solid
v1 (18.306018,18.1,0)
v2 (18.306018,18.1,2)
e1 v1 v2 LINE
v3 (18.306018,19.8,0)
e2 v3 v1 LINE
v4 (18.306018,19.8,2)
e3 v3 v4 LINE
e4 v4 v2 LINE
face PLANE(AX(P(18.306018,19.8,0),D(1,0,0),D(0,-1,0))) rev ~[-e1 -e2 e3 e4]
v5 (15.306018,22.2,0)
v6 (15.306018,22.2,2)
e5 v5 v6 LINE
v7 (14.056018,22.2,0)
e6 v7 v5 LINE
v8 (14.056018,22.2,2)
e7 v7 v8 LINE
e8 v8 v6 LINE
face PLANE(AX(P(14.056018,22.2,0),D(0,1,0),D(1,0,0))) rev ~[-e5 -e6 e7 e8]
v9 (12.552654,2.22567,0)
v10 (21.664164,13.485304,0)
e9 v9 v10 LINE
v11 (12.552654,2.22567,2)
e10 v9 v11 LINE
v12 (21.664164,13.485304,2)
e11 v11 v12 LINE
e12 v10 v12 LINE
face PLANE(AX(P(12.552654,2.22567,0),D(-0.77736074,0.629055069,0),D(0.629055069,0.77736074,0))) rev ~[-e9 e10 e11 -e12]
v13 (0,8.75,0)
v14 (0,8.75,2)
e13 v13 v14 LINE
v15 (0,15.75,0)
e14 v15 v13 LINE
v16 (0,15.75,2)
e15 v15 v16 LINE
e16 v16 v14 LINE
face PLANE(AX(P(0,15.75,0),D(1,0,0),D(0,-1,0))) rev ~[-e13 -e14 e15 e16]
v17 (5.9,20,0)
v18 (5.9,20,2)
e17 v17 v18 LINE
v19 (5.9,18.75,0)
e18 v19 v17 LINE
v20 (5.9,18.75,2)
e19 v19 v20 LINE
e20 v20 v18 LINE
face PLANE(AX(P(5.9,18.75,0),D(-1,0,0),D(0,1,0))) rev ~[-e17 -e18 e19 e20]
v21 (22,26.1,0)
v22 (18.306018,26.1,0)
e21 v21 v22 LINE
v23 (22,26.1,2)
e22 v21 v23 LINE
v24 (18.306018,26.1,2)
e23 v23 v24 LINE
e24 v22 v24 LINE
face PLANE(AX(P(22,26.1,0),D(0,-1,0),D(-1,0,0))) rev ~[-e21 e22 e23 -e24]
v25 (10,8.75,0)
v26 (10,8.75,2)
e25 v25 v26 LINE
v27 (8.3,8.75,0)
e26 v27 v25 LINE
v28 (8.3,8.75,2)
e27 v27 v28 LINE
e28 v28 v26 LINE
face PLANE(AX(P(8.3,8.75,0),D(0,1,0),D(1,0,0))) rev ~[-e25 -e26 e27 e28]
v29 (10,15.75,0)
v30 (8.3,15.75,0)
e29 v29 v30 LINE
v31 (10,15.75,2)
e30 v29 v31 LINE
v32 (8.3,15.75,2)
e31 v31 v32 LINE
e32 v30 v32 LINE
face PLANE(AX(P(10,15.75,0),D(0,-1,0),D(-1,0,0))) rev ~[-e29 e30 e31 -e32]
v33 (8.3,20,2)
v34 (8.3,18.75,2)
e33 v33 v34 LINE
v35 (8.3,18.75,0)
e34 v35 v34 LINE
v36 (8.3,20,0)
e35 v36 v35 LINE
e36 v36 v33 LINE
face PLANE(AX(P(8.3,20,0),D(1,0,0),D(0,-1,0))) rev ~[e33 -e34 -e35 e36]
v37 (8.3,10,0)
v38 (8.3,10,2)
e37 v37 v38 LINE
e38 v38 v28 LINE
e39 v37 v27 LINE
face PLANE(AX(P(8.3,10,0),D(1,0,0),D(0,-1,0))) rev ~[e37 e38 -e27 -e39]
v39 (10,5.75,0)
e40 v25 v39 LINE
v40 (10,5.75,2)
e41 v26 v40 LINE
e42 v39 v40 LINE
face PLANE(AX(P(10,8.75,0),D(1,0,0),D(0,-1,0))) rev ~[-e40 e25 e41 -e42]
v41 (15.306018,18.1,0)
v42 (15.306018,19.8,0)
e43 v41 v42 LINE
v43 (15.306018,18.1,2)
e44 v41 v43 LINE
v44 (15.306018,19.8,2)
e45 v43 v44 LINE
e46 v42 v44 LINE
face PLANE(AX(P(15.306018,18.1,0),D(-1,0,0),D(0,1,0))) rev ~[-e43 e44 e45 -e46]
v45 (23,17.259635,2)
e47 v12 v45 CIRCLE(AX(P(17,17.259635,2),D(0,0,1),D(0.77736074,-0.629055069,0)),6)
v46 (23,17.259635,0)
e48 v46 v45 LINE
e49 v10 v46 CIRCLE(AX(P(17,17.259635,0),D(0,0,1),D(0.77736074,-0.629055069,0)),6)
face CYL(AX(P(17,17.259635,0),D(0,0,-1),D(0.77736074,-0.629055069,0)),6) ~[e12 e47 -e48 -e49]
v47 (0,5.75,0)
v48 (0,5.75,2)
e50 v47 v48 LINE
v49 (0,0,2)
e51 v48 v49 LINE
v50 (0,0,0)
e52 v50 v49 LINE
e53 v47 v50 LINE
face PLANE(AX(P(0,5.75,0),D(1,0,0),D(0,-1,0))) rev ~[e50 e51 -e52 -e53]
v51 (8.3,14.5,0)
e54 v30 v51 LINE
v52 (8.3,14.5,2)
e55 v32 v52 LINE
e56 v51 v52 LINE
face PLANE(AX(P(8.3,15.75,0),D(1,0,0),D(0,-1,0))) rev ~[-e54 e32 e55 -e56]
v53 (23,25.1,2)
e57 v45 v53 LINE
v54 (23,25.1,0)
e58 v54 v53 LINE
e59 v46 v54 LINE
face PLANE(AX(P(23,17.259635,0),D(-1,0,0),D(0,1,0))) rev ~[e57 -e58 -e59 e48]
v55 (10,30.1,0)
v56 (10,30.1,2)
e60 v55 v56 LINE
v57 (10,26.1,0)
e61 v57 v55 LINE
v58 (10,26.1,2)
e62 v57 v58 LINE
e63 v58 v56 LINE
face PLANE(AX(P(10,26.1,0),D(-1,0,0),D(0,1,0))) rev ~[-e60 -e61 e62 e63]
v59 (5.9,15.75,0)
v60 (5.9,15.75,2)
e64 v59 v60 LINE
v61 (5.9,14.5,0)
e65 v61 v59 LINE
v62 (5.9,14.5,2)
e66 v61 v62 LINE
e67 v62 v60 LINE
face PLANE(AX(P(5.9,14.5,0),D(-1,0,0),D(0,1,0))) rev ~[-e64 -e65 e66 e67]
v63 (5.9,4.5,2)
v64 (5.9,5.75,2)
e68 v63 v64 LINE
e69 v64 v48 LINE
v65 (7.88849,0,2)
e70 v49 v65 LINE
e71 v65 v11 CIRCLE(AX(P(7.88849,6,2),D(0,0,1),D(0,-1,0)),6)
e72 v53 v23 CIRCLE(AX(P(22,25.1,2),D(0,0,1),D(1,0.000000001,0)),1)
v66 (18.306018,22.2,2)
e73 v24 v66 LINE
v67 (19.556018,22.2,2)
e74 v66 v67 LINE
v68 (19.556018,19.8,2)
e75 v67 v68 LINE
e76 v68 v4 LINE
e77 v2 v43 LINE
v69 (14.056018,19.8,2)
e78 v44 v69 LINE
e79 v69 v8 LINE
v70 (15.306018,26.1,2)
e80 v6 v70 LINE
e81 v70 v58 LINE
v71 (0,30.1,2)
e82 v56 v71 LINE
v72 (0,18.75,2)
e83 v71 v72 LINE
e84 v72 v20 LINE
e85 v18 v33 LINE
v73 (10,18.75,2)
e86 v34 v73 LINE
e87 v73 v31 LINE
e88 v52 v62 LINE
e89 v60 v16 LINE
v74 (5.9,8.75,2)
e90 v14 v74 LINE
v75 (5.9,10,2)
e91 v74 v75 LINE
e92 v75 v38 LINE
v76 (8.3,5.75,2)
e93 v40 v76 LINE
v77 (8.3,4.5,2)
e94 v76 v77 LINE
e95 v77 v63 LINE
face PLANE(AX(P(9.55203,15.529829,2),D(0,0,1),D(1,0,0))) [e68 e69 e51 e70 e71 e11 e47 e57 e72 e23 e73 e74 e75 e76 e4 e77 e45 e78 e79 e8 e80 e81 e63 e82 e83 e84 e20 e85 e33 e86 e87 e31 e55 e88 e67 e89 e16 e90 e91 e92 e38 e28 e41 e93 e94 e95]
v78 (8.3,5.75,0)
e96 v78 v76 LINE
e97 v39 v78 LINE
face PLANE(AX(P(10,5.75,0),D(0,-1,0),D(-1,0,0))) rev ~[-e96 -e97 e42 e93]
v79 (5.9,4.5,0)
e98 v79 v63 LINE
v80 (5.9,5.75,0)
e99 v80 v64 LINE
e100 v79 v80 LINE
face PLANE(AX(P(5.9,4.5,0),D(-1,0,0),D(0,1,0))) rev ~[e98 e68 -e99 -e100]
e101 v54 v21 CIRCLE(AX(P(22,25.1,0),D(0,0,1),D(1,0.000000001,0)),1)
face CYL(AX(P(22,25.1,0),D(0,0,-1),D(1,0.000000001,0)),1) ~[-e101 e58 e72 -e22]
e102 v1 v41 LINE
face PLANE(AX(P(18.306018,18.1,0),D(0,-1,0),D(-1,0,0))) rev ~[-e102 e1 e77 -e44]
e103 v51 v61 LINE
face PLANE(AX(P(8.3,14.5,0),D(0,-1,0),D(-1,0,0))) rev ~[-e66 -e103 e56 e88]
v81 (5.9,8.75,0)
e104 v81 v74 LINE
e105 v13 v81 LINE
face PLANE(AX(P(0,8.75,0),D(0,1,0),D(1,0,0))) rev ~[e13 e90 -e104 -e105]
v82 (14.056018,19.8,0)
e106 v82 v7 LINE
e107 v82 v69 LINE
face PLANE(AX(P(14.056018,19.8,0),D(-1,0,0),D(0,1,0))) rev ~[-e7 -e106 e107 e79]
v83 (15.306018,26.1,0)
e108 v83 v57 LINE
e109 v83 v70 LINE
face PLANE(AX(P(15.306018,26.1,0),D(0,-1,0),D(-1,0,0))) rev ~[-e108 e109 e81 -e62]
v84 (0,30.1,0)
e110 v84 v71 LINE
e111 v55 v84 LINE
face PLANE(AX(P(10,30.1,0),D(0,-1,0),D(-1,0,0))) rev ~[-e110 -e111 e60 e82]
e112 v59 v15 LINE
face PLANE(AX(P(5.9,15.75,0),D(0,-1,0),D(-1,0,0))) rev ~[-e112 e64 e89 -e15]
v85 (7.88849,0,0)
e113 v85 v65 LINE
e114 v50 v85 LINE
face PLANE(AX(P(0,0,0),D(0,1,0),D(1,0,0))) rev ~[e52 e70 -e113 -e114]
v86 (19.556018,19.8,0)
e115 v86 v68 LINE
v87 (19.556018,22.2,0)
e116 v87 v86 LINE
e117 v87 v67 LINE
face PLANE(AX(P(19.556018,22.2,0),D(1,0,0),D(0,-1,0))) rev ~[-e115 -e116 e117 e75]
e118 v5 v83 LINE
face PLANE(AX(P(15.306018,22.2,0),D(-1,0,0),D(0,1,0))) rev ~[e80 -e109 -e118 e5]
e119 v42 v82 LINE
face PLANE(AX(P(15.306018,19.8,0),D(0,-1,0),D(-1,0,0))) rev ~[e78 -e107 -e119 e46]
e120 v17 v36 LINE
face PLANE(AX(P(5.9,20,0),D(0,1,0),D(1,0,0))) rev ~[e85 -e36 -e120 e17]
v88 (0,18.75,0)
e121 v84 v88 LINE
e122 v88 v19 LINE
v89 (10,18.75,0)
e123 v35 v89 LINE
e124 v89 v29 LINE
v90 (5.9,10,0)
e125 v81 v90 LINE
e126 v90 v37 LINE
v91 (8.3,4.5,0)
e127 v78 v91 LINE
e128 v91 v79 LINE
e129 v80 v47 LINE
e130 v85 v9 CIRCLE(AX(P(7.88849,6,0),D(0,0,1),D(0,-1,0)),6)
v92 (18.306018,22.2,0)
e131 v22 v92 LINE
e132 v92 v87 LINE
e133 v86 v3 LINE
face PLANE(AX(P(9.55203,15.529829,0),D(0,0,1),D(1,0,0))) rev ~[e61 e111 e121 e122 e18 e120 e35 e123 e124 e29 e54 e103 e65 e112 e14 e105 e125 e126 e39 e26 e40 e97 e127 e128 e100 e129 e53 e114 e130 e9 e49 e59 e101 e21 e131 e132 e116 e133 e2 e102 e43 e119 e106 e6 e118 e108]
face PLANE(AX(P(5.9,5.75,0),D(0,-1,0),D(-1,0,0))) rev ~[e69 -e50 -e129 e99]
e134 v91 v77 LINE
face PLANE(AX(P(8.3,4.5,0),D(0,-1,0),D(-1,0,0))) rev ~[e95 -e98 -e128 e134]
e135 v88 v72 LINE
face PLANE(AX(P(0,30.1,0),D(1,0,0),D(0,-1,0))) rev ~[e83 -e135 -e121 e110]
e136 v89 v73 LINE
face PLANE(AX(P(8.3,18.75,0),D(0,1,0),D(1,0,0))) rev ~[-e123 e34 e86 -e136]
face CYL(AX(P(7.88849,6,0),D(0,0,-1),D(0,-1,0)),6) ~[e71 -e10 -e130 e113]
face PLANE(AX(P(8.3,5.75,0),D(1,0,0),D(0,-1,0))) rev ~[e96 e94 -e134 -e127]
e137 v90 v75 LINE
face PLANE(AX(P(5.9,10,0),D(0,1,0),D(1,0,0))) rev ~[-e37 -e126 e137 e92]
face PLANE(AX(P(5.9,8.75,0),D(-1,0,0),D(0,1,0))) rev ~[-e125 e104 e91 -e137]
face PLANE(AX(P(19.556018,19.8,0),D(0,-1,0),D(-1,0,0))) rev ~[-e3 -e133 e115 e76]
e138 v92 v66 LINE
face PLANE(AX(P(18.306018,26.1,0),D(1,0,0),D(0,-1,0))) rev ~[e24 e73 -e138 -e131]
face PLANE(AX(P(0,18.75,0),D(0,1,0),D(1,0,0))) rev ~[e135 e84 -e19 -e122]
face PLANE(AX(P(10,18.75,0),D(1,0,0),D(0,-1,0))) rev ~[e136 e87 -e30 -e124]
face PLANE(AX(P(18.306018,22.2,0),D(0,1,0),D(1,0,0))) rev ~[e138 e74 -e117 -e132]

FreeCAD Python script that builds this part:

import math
import FreeCAD as App
import Part
import Sketcher
from FreeCAD import Vector

doc = App.newDocument("Part")
body = doc.addObject("PartDesign::Body", "Body")

# Sketch on XY plane
sketch1 = doc.addObject("Sketcher::SketchObject", "Sketch")
body.addObject(sketch1)
sketch1.AttachmentSupport = (doc.XY_Plane, [""])
sketch1.MapMode = "FlatFace"
sketch1.addGeometry(Part.LineSegment(Vector(10, 5.75, 0), Vector(8.3, 5.75, 0)), False)
sketch1.addGeometry(Part.LineSegment(Vector(8.3, 5.75, 0), Vector(8.3, 4.5, 0)), False)
sketch1.addGeometry(Part.LineSegment(Vector(8.3, 4.5, 0), Vector(5.9, 4.5, 0)), False)
sketch1.addGeometry(Part.LineSegment(Vector(5.9, 4.5, 0), Vector(5.9, 5.75, 0)), False)
sketch1.addGeometry(Part.LineSegment(Vector(5.9, 5.75, 0), Vector(0, 5.75, 0)), False)
sketch1.addGeometry(Part.LineSegment(Vector(0, 5.75, 0), Vector(0, 0, 0)), False)
sketch1.addGeometry(Part.LineSegment(Vector(0, 0, 0), Vector(7.88849, 0, 0)), False)
sketch1.addGeometry(Part.ArcOfCircle(Part.Circle(Vector(7.88849, 6, 0), Vector(0, 0, 1), 6), math.radians(-90), math.radians(-38.980442)), False)
sketch1.addGeometry(Part.LineSegment(Vector(12.552654, 2.22567, 0), Vector(21.664164, 13.485304, 0)), False)
sketch1.addGeometry(Part.ArcOfCircle(Part.Circle(Vector(17, 17.259635, 0), Vector(0, 0, 1), 6), math.radians(-38.980442), math.radians(0)), False)
sketch1.addGeometry(Part.LineSegment(Vector(23, 17.259635, 0), Vector(23, 25.1, 0)), False)
sketch1.addGeometry(Part.ArcOfCircle(Part.Circle(Vector(22, 25.1, 0), Vector(0, 0, 1), 1), math.radians(0), math.radians(90)), False)
sketch1.addGeometry(Part.LineSegment(Vector(22, 26.1, 0), Vector(18.306018, 26.1, 0)), False)
sketch1.addGeometry(Part.LineSegment(Vector(18.306018, 26.1, 0), Vector(18.306018, 22.2, 0)), False)
sketch1.addGeometry(Part.LineSegment(Vector(18.306018, 22.2, 0), Vector(19.556018, 22.2, 0)), False)
sketch1.addGeometry(Part.LineSegment(Vector(19.556018, 22.2, 0), Vector(19.556018, 19.8, 0)), False)
sketch1.addGeometry(Part.LineSegment(Vector(19.556018, 19.8, 0), Vector(18.306018, 19.8, 0)), False)
sketch1.addGeometry(Part.LineSegment(Vector(18.306018, 19.8, 0), Vector(18.306018, 18.1, 0)), False)
sketch1.addGeometry(Part.LineSegment(Vector(18.306018, 18.1, 0), Vector(15.306018, 18.1, 0)), False)
sketch1.addGeometry(Part.LineSegment(Vector(15.306018, 18.1, 0), Vector(15.306018, 19.8, 0)), False)
sketch1.addGeometry(Part.LineSegment(Vector(15.306018, 19.8, 0), Vector(14.056018, 19.8, 0)), False)
sketch1.addGeometry(Part.LineSegment(Vector(14.056018, 19.8, 0), Vector(14.056018, 22.2, 0)), False)
sketch1.addGeometry(Part.LineSegment(Vector(14.056018, 22.2, 0), Vector(15.306018, 22.2, 0)), False)
sketch1.addGeometry(Part.LineSegment(Vector(15.306018, 22.2, 0), Vector(15.306018, 26.1, 0)), False)
sketch1.addGeometry(Part.LineSegment(Vector(15.306018, 26.1, 0), Vector(10, 26.1, 0)), False)
sketch1.addGeometry(Part.LineSegment(Vector(10, 26.1, 0), Vector(10, 30.1, 0)), False)
sketch1.addGeometry(Part.LineSegment(Vector(10, 30.1, 0), Vector(0, 30.1, 0)), False)
sketch1.addGeometry(Part.LineSegment(Vector(0, 30.1, 0), Vector(0, 18.75, 0)), False)
sketch1.addGeometry(Part.LineSegment(Vector(0, 18.75, 0), Vector(5.9, 18.75, 0)), False)
sketch1.addGeometry(Part.LineSegment(Vector(5.9, 18.75, 0), Vector(5.9, 20, 0)), False)
sketch1.addGeometry(Part.LineSegment(Vector(5.9, 20, 0), Vector(8.3, 20, 0)), False)
sketch1.addGeometry(Part.LineSegment(Vector(8.3, 20, 0), Vector(8.3, 18.75, 0)), False)
sketch1.addGeometry(Part.LineSegment(Vector(8.3, 18.75, 0), Vector(10, 18.75, 0)), False)
sketch1.addGeometry(Part.LineSegment(Vector(10, 18.75, 0), Vector(10, 15.75, 0)), False)
sketch1.addGeometry(Part.LineSegment(Vector(10, 15.75, 0), Vector(8.3, 15.75, 0)), False)
sketch1.addGeometry(Part.LineSegment(Vector(8.3, 15.75, 0), Vector(8.3, 14.5, 0)), False)
sketch1.addGeometry(Part.LineSegment(Vector(8.3, 14.5, 0), Vector(5.9, 14.5, 0)), False)
sketch1.addGeometry(Part.LineSegment(Vector(5.9, 14.5, 0), Vector(5.9, 15.75, 0)), False)
sketch1.addGeometry(Part.LineSegment(Vector(5.9, 15.75, 0), Vector(0, 15.75, 0)), False)
sketch1.addGeometry(Part.LineSegment(Vector(0, 15.75, 0), Vector(0, 8.75, 0)), False)
sketch1.addGeometry(Part.LineSegment(Vector(0, 8.75, 0), Vector(5.9, 8.75, 0)), False)
sketch1.addGeometry(Part.LineSegment(Vector(5.9, 8.75, 0), Vector(5.9, 10, 0)), False)
sketch1.addGeometry(Part.LineSegment(Vector(5.9, 10, 0), Vector(8.3, 10, 0)), False)
sketch1.addGeometry(Part.LineSegment(Vector(8.3, 10, 0), Vector(8.3, 8.75, 0)), False)
sketch1.addGeometry(Part.LineSegment(Vector(8.3, 8.75, 0), Vector(10, 8.75, 0)), False)
sketch1.addGeometry(Part.LineSegment(Vector(10, 8.75, 0), Vector(10, 5.75, 0)), False)
sketch1.addConstraint(Sketcher.Constraint("Coincident", 0, 2, 1, 1))
sketch1.addConstraint(Sketcher.Constraint("Coincident", 1, 2, 2, 1))
sketch1.addConstraint(Sketcher.Constraint("Coincident", 2, 2, 3, 1))
sketch1.addConstraint(Sketcher.Constraint("Coincident", 3, 2, 4, 1))
sketch1.addConstraint(Sketcher.Constraint("Coincident", 4, 2, 5, 1))
sketch1.addConstraint(Sketcher.Constraint("Coincident", 5, 2, 6, 1))
sketch1.addConstraint(Sketcher.Constraint("Tangent", 6, 2, 7, 1))
sketch1.addConstraint(Sketcher.Constraint("Tangent", 7, 2, 8, 1))
sketch1.addConstraint(Sketcher.Constraint("Tangent", 8, 2, 9, 1))
sketch1.addConstraint(Sketcher.Constraint("Tangent", 9, 2, 10, 1))
sketch1.addConstraint(Sketcher.Constraint("Tangent", 10, 2, 11, 1))
sketch1.addConstraint(Sketcher.Constraint("Tangent", 11, 2, 12, 1))
sketch1.addConstraint(Sketcher.Constraint("Coincident", 12, 2, 13, 1))
sketch1.addConstraint(Sketcher.Constraint("Coincident", 13, 2, 14, 1))
sketch1.addConstraint(Sketcher.Constraint("Coincident", 14, 2, 15, 1))
sketch1.addConstraint(Sketcher.Constraint("Coincident", 15, 2, 16, 1))
sketch1.addConstraint(Sketcher.Constraint("Coincident", 16, 2, 17, 1))
sketch1.addConstraint(Sketcher.Constraint("Coincident", 17, 2, 18, 1))
sketch1.addConstraint(Sketcher.Constraint("Coincident", 18, 2, 19, 1))
sketch1.addConstraint(Sketcher.Constraint("Coincident", 19, 2, 20, 1))
sketch1.addConstraint(Sketcher.Constraint("Coincident", 20, 2, 21, 1))
sketch1.addConstraint(Sketcher.Constraint("Coincident", 21, 2, 22, 1))
sketch1.addConstraint(Sketcher.Constraint("Coincident", 22, 2, 23, 1))
sketch1.addConstraint(Sketcher.Constraint("Coincident", 23, 2, 24, 1))
sketch1.addConstraint(Sketcher.Constraint("Coincident", 24, 2, 25, 1))
sketch1.addConstraint(Sketcher.Constraint("Coincident", 25, 2, 26, 1))
sketch1.addConstraint(Sketcher.Constraint("Coincident", 26, 2, 27, 1))
sketch1.addConstraint(Sketcher.Constraint("Coincident", 27, 2, 28, 1))
sketch1.addConstraint(Sketcher.Constraint("Coincident", 28, 2, 29, 1))
sketch1.addConstraint(Sketcher.Constraint("Coincident", 29, 2, 30, 1))
sketch1.addConstraint(Sketcher.Constraint("Coincident", 30, 2, 31, 1))
sketch1.addConstraint(Sketcher.Constraint("Coincident", 31, 2, 32, 1))
sketch1.addConstraint(Sketcher.Constraint("Coincident", 32, 2, 33, 1))
sketch1.addConstraint(Sketcher.Constraint("Coincident", 33, 2, 34, 1))
sketch1.addConstraint(Sketcher.Constraint("Coincident", 34, 2, 35, 1))
sketch1.addConstraint(Sketcher.Constraint("Coincident", 35, 2, 36, 1))
sketch1.addConstraint(Sketcher.Constraint("Coincident", 36, 2, 37, 1))
sketch1.addConstraint(Sketcher.Constraint("Coincident", 37, 2, 38, 1))
sketch1.addConstraint(Sketcher.Constraint("Coincident", 38, 2, 39, 1))
sketch1.addConstraint(Sketcher.Constraint("Coincident", 39, 2, 40, 1))
sketch1.addConstraint(Sketcher.Constraint("Coincident", 40, 2, 41, 1))
sketch1.addConstraint(Sketcher.Constraint("Coincident", 41, 2, 42, 1))
sketch1.addConstraint(Sketcher.Constraint("Coincident", 42, 2, 43, 1))
sketch1.addConstraint(Sketcher.Constraint("Coincident", 43, 2, 44, 1))
sketch1.addConstraint(Sketcher.Constraint("Coincident", 44, 2, 45, 1))
sketch1.addConstraint(Sketcher.Constraint("Coincident", 45, 2, 0, 1))
sketch1.addConstraint(Sketcher.Constraint("Horizontal", 0))
sketch1.addConstraint(Sketcher.Constraint("Vertical", 1))
sketch1.addConstraint(Sketcher.Constraint("Horizontal", 2))
sketch1.addConstraint(Sketcher.Constraint("Vertical", 3))
sketch1.addConstraint(Sketcher.Constraint("Horizontal", 4))
sketch1.addConstraint(Sketcher.Constraint("Vertical", 5))
sketch1.addConstraint(Sketcher.Constraint("Horizontal", 6))
sketch1.addConstraint(Sketcher.Constraint("Vertical", 10))
sketch1.addConstraint(Sketcher.Constraint("Horizontal", 12))
sketch1.addConstraint(Sketcher.Constraint("Vertical", 13))
sketch1.addConstraint(Sketcher.Constraint("Horizontal", 14))
sketch1.addConstraint(Sketcher.Constraint("Vertical", 15))
sketch1.addConstraint(Sketcher.Constraint("Horizontal", 16))
sketch1.addConstraint(Sketcher.Constraint("Vertical", 17))
sketch1.addConstraint(Sketcher.Constraint("Horizontal", 18))
sketch1.addConstraint(Sketcher.Constraint("Vertical", 19))
sketch1.addConstraint(Sketcher.Constraint("Horizontal", 20))
sketch1.addConstraint(Sketcher.Constraint("Vertical", 21))
sketch1.addConstraint(Sketcher.Constraint("Horizontal", 22))
sketch1.addConstraint(Sketcher.Constraint("Vertical", 23))
sketch1.addConstraint(Sketcher.Constraint("Horizontal", 24))
sketch1.addConstraint(Sketcher.Constraint("Vertical", 25))
sketch1.addConstraint(Sketcher.Constraint("Horizontal", 26))
sketch1.addConstraint(Sketcher.Constraint("Vertical", 27))
sketch1.addConstraint(Sketcher.Constraint("Horizontal", 28))
sketch1.addConstraint(Sketcher.Constraint("Vertical", 29))
sketch1.addConstraint(Sketcher.Constraint("Horizontal", 30))
sketch1.addConstraint(Sketcher.Constraint("Vertical", 31))
sketch1.addConstraint(Sketcher.Constraint("Horizontal", 32))
sketch1.addConstraint(Sketcher.Constraint("Vertical", 33))
sketch1.addConstraint(Sketcher.Constraint("Horizontal", 34))
sketch1.addConstraint(Sketcher.Constraint("Vertical", 35))
sketch1.addConstraint(Sketcher.Constraint("Horizontal", 36))
sketch1.addConstraint(Sketcher.Constraint("Vertical", 37))
sketch1.addConstraint(Sketcher.Constraint("Horizontal", 38))
sketch1.addConstraint(Sketcher.Constraint("Vertical", 39))
sketch1.addConstraint(Sketcher.Constraint("Horizontal", 40))
sketch1.addConstraint(Sketcher.Constraint("Vertical", 41))
sketch1.addConstraint(Sketcher.Constraint("Horizontal", 42))
sketch1.addConstraint(Sketcher.Constraint("Vertical", 43))
sketch1.addConstraint(Sketcher.Constraint("Horizontal", 44))
sketch1.addConstraint(Sketcher.Constraint("Vertical", 45))
sketch1.addConstraint(Sketcher.Constraint("Coincident", 5, 2, -1, 1))
sketch1.addConstraint(Sketcher.Constraint("Equal", 7, 9))
sketch1.addConstraint(Sketcher.Constraint("PointOnObject", 26, 2, -2))
sketch1.addConstraint(Sketcher.Constraint("PointOnObject", 38, 2, -2))
sketch1.addConstraint(Sketcher.Constraint("Horizontal", 0, 2, 3, 2))
sketch1.addConstraint(Sketcher.Constraint("Horizontal", 16, 2, 19, 2))
sketch1.addConstraint(Sketcher.Constraint("Horizontal", 14, 2, 21, 2))
sketch1.addConstraint(Sketcher.Constraint("Horizontal", 12, 2, 23, 2))
sketch1.addConstraint(Sketcher.Constraint("Horizontal", 28, 2, 31, 2))
sketch1.addConstraint(Sketcher.Constraint("Horizontal", 34, 2, 37, 2))
sketch1.addConstraint(Sketcher.Constraint("Horizontal", 40, 2, 43, 2))
sketch1.addConstraint(Sketcher.Constraint("Vertical", 13, 2, 16, 2))
sketch1.addConstraint(Sketcher.Constraint("Vertical", 19, 2, 22, 2))
sketch1.addConstraint(Sketcher.Constraint("Vertical", 3, 2, 28, 2))
sketch1.addConstraint(Sketcher.Constraint("Vertical", 1, 2, 30, 2))
sketch1.addConstraint(Sketcher.Constraint("Vertical", 25, 2, 32, 2))
sketch1.addConstraint(Sketcher.Constraint("Vertical", 31, 2, 34, 2))
sketch1.addConstraint(Sketcher.Constraint("Vertical", 29, 2, 36, 2))
sketch1.addConstraint(Sketcher.Constraint("Vertical", 37, 2, 40, 2))
sketch1.addConstraint(Sketcher.Constraint("Vertical", 35, 2, 42, 2))
sketch1.addConstraint(Sketcher.Constraint("Vertical", 33, 2, 44, 2))
sketch1.addConstraint(Sketcher.Constraint("Equal", 16, 20))
sketch1.addConstraint(Sketcher.Constraint("Equal", 22, 1))
sketch1.addConstraint(Sketcher.Constraint("Equal", 42, 15))
sketch1.addConstraint(Sketcher.Constraint("Equal", 44, 17))
sketch1.addConstraint(Sketcher.Constraint("Equal", 3, 29))
sketch1.addConstraint(Sketcher.Constraint("Equal", 18, 33))
sketch1.addConstraint(Sketcher.Constraint("Equal", 31, 35))
sketch1.addConstraint(Sketcher.Constraint("Equal", 37, 41))
sketch1.addConstraint(Sketcher.Constraint("Equal", 33, 45))
sketch1.addConstraint(Sketcher.Constraint("Radius", 7, 6.0))
sketch1.addConstraint(Sketcher.Constraint("Radius", 11, 1.0))
sketch1.addConstraint(Sketcher.Constraint("DistanceX", 18, 2, 18, 1, 3.0))
sketch1.addConstraint(Sketcher.Constraint("DistanceX", 26, 2, 26, 1, 10.0))
sketch1.addConstraint(Sketcher.Constraint("DistanceY", 25, 1, 25, 2, 4.0))
sketch1.addConstraint(Sketcher.Constraint("DistanceY", 39, 2, 39, 1, 7.0))
sketch1.addConstraint(Sketcher.Constraint("DistanceX", 0, 2, 0, 1, 1.7))
sketch1.addConstraint(Sketcher.Constraint("DistanceX", 2, 2, 2, 1, 2.4))
sketch1.addConstraint(Sketcher.Constraint("DistanceY", 13, 2, 13, 1, 3.9))
sketch1.addConstraint(Sketcher.Constraint("DistanceX", -1, 1, 9, 3, 17.0))
sketch1.addConstraint(Sketcher.Constraint("DistanceY", -1, 1, 29, 2, 20.0))
sketch1.addConstraint(Sketcher.Constraint("DistanceX", 14, 1, 14, 2, 1.25))
sketch1.addConstraint(Sketcher.Constraint("DistanceY", 27, 2, 27, 1, 11.35))
sketch1.addConstraint(Sketcher.Constraint("DistanceX", 6, 1, 6, 2, 7.88849))
sketch1.addConstraint(Sketcher.Constraint("DistanceX", 12, 2, 12, 1, 3.693982))
sketch1.addConstraint(Sketcher.Constraint("Distance", 8, 14.484439))
pad1 = doc.addObject("PartDesign::Pad", "Pad")
body.addObject(pad1)
pad1.Profile = sketch1
pad1.Length = 2

doc.recompute()
